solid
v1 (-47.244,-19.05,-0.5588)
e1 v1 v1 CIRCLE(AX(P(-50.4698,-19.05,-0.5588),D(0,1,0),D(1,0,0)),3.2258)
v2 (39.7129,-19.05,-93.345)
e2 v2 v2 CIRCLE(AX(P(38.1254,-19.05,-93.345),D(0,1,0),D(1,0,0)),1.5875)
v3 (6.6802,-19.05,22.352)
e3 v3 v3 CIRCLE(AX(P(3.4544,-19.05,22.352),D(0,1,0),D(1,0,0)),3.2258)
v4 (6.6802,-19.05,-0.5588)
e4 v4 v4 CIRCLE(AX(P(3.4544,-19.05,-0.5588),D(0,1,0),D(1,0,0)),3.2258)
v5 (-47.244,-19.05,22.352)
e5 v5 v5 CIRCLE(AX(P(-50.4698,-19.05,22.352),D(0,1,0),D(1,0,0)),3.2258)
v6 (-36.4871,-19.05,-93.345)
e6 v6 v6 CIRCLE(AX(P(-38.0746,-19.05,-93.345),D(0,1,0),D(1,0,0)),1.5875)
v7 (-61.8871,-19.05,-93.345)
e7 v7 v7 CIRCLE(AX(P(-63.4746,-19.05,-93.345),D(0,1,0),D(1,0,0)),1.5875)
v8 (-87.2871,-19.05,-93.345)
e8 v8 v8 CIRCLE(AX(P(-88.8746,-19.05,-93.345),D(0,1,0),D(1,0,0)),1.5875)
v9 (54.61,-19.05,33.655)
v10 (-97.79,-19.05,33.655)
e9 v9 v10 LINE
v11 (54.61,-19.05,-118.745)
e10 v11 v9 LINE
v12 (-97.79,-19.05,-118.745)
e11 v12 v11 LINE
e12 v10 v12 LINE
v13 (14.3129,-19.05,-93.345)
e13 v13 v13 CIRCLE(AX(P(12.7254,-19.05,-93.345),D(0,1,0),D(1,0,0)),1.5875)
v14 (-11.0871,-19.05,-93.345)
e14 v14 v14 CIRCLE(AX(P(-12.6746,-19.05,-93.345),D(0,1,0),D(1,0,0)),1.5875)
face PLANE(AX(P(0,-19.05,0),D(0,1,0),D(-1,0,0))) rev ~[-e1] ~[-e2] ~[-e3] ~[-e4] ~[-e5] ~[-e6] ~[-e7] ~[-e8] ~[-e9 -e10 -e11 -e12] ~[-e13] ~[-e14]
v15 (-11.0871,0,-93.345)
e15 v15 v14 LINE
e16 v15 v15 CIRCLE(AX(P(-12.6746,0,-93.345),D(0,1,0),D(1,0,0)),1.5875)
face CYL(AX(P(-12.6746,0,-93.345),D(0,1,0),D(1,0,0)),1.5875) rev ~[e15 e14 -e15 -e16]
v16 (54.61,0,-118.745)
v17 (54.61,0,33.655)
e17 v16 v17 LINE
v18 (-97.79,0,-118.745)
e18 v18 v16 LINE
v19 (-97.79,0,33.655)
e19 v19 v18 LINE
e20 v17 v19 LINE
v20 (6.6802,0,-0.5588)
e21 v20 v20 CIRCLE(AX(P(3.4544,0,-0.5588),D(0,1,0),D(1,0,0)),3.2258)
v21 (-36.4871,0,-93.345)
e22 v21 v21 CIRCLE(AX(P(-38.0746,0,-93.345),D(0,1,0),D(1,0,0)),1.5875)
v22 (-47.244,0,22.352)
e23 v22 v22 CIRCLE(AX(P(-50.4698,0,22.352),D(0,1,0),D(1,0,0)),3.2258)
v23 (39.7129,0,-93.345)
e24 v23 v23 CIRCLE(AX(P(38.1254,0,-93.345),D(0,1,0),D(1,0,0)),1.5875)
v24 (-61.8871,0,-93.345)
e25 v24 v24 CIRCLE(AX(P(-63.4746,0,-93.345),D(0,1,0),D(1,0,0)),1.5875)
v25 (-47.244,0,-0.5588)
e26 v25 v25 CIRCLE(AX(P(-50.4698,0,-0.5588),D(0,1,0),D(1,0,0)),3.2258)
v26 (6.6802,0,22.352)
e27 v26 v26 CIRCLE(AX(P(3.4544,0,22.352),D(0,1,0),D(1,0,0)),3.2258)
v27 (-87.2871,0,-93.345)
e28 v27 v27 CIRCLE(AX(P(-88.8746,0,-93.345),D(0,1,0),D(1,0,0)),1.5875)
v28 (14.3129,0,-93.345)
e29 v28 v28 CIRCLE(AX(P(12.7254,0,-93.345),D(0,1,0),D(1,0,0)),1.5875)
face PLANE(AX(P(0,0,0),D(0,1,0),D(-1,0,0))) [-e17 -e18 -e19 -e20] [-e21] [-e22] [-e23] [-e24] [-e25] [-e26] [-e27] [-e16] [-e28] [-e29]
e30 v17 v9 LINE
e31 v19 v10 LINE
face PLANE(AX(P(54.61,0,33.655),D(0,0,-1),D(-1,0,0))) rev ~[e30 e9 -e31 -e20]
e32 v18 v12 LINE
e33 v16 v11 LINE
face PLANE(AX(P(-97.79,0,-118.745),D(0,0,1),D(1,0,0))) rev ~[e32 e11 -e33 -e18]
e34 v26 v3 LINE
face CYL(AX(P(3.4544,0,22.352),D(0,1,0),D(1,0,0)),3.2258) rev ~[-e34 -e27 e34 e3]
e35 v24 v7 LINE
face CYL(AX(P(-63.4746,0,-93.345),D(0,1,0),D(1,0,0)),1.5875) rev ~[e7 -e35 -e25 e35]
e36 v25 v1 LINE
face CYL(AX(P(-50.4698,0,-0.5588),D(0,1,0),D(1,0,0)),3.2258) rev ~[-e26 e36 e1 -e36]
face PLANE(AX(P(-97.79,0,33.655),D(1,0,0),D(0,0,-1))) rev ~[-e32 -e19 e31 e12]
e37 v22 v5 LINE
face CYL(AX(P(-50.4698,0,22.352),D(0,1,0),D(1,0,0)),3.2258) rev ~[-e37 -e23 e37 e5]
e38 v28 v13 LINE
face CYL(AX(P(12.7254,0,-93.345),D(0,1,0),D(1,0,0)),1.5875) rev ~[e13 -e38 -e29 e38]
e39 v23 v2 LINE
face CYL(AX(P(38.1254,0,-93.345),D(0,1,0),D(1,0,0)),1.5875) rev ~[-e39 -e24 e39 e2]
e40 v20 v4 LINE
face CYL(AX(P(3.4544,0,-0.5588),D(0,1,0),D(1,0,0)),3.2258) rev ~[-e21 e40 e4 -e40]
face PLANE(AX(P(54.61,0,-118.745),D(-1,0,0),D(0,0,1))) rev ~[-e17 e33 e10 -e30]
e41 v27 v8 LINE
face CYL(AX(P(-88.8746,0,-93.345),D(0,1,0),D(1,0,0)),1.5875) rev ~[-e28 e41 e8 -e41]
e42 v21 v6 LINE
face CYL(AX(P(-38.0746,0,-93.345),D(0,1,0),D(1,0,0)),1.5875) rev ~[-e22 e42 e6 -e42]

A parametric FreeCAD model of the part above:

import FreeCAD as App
import Part
import Sketcher
Q = App.Units.Quantity

doc = App.newDocument("Part")
body = doc.addObject("PartDesign::Body", "Body")

# Sketch on XZ plane
sketch1 = body.newObject("Sketcher::SketchObject", "Sketch")
sketch1.AttachmentSupport = (doc.getObject("XZ_Plane"), [""])
sketch1.MapMode = "FlatFace"
sketch1.addGeometry([
    Part.LineSegment(App.Vector(54.61, -118.745, 0), App.Vector(-97.79, -118.745, 0)),
    Part.LineSegment(App.Vector(-97.79, -118.745, 0), App.Vector(-97.79, 33.655, 0)),
    Part.LineSegment(App.Vector(-97.79, 33.655, 0), App.Vector(54.61, 33.655, 0)),
    Part.LineSegment(App.Vector(54.61, 33.655, 0), App.Vector(54.61, -118.745, 0)),
], False)
sketch1.addConstraint([
    Sketcher.Constraint("Coincident", 0, 2, 1, 1),
    Sketcher.Constraint("Coincident", 1, 2, 2, 1),
    Sketcher.Constraint("Coincident", 2, 2, 3, 1),
    Sketcher.Constraint("Coincident", 3, 2, 0, 1),
    Sketcher.Constraint("Horizontal", 0),
    Sketcher.Constraint("Vertical", 1),
    Sketcher.Constraint("Horizontal", 2),
    Sketcher.Constraint("Vertical", 3),
    Sketcher.Constraint("Equal", 2, 1),
    Sketcher.Constraint("DistanceX", 0, 2, 0, 1, Q("6 in")),
    Sketcher.Constraint("DistanceX", 0, 2, -1, 1, Q("3.85 in")),
    Sketcher.Constraint("DistanceY", 0, 2, -1, 1, Q("4.675 in")),
])
pad1 = body.newObject("PartDesign::Pad", "Pad")
pad1.Profile = sketch1
pad1.Length = Q("0.75 in")

# Sketch on XZ plane
sketch2 = body.newObject("Sketcher::SketchObject", "Sketch001")
sketch2.AttachmentSupport = (doc.getObject("XZ_Plane"), [""])
sketch2.MapMode = "FlatFace"
sketch2.addGeometry(Part.Circle(App.Vector(-88.8746, -93.345, 0), App.Vector(0, 0, 1), 1.5875), False)
sketch2.addConstraint([
    Sketcher.Constraint("Diameter", 0, Q("0.125 in")),
    Sketcher.Constraint("DistanceX", 0, 3, -1, 1, Q("3.499 in")),
    Sketcher.Constraint("DistanceY", 0, 3, -1, 1, Q("3.675 in")),
])
pocket1 = body.newObject("PartDesign::Pocket", "Pocket")
pocket1.Profile = sketch2
pocket1.Length = Q("0.75 in")
pocket1.Reversed = True
doc.recompute()

linearpattern = body.newObject("PartDesign::LinearPattern", "LinearPattern")
linearpattern.Originals = [pocket1]
linearpattern.Direction = (doc.getObject("X_Axis"), [""])
linearpattern.Mode = "offset"
linearpattern.Offset = Q("1 in")
linearpattern.Occurrences = 6
body.Tip = linearpattern

# Sketch on XZ plane
sketch3 = body.newObject("Sketcher::SketchObject", "Sketch002")
sketch3.AttachmentSupport = (doc.getObject("XZ_Plane"), [""])
sketch3.MapMode = "FlatFace"
sketch3.addGeometry([
    Part.Circle(App.Vector(3.4544, 22.352, 0), App.Vector(0, 0, 1), 3.2258),
    Part.Circle(App.Vector(-50.4698, 22.352, 0), App.Vector(0, 0, 1), 3.2258),
    Part.Circle(App.Vector(3.4544, -0.5588, 0), App.Vector(0, 0, 1), 3.2258),
    Part.Circle(App.Vector(-50.4698, -0.5588, 0), App.Vector(0, 0, 1), 3.2258),
], False)
sketch3.addConstraint([
    Sketcher.Constraint("Equal", 0, 1),
    Sketcher.Constraint("Equal", 1, 2),
    Sketcher.Constraint("Equal", 2, 3),
    Sketcher.Constraint("Horizontal", 0, 3, 1, 3),
    Sketcher.Constraint("Horizontal", 2, 3, 3, 3),
    Sketcher.Constraint("Vertical", 0, 3, 2, 3),
    Sketcher.Constraint("Vertical", 1, 3, 3, 3),
    Sketcher.Constraint("Diameter", 0, Q("0.254 in")),
    Sketcher.Constraint("DistanceX", 1, 3, 0, 3, Q("2.123 in")),
    Sketcher.Constraint("DistanceY", 2, 3, 0, 3, Q("0.902 in")),
    Sketcher.Constraint("DistanceY", -1, 1, 0, 3, Q("0.88 in")),
    Sketcher.Constraint("DistanceX", -1, 1, 0, 3, Q("0.136 in")),
])
pocket2 = body.newObject("PartDesign::Pocket", "Pocket001")
pocket2.Profile = sketch3
pocket2.Length = Q("1 in")
pocket2.Reversed = True

doc.recompute()
